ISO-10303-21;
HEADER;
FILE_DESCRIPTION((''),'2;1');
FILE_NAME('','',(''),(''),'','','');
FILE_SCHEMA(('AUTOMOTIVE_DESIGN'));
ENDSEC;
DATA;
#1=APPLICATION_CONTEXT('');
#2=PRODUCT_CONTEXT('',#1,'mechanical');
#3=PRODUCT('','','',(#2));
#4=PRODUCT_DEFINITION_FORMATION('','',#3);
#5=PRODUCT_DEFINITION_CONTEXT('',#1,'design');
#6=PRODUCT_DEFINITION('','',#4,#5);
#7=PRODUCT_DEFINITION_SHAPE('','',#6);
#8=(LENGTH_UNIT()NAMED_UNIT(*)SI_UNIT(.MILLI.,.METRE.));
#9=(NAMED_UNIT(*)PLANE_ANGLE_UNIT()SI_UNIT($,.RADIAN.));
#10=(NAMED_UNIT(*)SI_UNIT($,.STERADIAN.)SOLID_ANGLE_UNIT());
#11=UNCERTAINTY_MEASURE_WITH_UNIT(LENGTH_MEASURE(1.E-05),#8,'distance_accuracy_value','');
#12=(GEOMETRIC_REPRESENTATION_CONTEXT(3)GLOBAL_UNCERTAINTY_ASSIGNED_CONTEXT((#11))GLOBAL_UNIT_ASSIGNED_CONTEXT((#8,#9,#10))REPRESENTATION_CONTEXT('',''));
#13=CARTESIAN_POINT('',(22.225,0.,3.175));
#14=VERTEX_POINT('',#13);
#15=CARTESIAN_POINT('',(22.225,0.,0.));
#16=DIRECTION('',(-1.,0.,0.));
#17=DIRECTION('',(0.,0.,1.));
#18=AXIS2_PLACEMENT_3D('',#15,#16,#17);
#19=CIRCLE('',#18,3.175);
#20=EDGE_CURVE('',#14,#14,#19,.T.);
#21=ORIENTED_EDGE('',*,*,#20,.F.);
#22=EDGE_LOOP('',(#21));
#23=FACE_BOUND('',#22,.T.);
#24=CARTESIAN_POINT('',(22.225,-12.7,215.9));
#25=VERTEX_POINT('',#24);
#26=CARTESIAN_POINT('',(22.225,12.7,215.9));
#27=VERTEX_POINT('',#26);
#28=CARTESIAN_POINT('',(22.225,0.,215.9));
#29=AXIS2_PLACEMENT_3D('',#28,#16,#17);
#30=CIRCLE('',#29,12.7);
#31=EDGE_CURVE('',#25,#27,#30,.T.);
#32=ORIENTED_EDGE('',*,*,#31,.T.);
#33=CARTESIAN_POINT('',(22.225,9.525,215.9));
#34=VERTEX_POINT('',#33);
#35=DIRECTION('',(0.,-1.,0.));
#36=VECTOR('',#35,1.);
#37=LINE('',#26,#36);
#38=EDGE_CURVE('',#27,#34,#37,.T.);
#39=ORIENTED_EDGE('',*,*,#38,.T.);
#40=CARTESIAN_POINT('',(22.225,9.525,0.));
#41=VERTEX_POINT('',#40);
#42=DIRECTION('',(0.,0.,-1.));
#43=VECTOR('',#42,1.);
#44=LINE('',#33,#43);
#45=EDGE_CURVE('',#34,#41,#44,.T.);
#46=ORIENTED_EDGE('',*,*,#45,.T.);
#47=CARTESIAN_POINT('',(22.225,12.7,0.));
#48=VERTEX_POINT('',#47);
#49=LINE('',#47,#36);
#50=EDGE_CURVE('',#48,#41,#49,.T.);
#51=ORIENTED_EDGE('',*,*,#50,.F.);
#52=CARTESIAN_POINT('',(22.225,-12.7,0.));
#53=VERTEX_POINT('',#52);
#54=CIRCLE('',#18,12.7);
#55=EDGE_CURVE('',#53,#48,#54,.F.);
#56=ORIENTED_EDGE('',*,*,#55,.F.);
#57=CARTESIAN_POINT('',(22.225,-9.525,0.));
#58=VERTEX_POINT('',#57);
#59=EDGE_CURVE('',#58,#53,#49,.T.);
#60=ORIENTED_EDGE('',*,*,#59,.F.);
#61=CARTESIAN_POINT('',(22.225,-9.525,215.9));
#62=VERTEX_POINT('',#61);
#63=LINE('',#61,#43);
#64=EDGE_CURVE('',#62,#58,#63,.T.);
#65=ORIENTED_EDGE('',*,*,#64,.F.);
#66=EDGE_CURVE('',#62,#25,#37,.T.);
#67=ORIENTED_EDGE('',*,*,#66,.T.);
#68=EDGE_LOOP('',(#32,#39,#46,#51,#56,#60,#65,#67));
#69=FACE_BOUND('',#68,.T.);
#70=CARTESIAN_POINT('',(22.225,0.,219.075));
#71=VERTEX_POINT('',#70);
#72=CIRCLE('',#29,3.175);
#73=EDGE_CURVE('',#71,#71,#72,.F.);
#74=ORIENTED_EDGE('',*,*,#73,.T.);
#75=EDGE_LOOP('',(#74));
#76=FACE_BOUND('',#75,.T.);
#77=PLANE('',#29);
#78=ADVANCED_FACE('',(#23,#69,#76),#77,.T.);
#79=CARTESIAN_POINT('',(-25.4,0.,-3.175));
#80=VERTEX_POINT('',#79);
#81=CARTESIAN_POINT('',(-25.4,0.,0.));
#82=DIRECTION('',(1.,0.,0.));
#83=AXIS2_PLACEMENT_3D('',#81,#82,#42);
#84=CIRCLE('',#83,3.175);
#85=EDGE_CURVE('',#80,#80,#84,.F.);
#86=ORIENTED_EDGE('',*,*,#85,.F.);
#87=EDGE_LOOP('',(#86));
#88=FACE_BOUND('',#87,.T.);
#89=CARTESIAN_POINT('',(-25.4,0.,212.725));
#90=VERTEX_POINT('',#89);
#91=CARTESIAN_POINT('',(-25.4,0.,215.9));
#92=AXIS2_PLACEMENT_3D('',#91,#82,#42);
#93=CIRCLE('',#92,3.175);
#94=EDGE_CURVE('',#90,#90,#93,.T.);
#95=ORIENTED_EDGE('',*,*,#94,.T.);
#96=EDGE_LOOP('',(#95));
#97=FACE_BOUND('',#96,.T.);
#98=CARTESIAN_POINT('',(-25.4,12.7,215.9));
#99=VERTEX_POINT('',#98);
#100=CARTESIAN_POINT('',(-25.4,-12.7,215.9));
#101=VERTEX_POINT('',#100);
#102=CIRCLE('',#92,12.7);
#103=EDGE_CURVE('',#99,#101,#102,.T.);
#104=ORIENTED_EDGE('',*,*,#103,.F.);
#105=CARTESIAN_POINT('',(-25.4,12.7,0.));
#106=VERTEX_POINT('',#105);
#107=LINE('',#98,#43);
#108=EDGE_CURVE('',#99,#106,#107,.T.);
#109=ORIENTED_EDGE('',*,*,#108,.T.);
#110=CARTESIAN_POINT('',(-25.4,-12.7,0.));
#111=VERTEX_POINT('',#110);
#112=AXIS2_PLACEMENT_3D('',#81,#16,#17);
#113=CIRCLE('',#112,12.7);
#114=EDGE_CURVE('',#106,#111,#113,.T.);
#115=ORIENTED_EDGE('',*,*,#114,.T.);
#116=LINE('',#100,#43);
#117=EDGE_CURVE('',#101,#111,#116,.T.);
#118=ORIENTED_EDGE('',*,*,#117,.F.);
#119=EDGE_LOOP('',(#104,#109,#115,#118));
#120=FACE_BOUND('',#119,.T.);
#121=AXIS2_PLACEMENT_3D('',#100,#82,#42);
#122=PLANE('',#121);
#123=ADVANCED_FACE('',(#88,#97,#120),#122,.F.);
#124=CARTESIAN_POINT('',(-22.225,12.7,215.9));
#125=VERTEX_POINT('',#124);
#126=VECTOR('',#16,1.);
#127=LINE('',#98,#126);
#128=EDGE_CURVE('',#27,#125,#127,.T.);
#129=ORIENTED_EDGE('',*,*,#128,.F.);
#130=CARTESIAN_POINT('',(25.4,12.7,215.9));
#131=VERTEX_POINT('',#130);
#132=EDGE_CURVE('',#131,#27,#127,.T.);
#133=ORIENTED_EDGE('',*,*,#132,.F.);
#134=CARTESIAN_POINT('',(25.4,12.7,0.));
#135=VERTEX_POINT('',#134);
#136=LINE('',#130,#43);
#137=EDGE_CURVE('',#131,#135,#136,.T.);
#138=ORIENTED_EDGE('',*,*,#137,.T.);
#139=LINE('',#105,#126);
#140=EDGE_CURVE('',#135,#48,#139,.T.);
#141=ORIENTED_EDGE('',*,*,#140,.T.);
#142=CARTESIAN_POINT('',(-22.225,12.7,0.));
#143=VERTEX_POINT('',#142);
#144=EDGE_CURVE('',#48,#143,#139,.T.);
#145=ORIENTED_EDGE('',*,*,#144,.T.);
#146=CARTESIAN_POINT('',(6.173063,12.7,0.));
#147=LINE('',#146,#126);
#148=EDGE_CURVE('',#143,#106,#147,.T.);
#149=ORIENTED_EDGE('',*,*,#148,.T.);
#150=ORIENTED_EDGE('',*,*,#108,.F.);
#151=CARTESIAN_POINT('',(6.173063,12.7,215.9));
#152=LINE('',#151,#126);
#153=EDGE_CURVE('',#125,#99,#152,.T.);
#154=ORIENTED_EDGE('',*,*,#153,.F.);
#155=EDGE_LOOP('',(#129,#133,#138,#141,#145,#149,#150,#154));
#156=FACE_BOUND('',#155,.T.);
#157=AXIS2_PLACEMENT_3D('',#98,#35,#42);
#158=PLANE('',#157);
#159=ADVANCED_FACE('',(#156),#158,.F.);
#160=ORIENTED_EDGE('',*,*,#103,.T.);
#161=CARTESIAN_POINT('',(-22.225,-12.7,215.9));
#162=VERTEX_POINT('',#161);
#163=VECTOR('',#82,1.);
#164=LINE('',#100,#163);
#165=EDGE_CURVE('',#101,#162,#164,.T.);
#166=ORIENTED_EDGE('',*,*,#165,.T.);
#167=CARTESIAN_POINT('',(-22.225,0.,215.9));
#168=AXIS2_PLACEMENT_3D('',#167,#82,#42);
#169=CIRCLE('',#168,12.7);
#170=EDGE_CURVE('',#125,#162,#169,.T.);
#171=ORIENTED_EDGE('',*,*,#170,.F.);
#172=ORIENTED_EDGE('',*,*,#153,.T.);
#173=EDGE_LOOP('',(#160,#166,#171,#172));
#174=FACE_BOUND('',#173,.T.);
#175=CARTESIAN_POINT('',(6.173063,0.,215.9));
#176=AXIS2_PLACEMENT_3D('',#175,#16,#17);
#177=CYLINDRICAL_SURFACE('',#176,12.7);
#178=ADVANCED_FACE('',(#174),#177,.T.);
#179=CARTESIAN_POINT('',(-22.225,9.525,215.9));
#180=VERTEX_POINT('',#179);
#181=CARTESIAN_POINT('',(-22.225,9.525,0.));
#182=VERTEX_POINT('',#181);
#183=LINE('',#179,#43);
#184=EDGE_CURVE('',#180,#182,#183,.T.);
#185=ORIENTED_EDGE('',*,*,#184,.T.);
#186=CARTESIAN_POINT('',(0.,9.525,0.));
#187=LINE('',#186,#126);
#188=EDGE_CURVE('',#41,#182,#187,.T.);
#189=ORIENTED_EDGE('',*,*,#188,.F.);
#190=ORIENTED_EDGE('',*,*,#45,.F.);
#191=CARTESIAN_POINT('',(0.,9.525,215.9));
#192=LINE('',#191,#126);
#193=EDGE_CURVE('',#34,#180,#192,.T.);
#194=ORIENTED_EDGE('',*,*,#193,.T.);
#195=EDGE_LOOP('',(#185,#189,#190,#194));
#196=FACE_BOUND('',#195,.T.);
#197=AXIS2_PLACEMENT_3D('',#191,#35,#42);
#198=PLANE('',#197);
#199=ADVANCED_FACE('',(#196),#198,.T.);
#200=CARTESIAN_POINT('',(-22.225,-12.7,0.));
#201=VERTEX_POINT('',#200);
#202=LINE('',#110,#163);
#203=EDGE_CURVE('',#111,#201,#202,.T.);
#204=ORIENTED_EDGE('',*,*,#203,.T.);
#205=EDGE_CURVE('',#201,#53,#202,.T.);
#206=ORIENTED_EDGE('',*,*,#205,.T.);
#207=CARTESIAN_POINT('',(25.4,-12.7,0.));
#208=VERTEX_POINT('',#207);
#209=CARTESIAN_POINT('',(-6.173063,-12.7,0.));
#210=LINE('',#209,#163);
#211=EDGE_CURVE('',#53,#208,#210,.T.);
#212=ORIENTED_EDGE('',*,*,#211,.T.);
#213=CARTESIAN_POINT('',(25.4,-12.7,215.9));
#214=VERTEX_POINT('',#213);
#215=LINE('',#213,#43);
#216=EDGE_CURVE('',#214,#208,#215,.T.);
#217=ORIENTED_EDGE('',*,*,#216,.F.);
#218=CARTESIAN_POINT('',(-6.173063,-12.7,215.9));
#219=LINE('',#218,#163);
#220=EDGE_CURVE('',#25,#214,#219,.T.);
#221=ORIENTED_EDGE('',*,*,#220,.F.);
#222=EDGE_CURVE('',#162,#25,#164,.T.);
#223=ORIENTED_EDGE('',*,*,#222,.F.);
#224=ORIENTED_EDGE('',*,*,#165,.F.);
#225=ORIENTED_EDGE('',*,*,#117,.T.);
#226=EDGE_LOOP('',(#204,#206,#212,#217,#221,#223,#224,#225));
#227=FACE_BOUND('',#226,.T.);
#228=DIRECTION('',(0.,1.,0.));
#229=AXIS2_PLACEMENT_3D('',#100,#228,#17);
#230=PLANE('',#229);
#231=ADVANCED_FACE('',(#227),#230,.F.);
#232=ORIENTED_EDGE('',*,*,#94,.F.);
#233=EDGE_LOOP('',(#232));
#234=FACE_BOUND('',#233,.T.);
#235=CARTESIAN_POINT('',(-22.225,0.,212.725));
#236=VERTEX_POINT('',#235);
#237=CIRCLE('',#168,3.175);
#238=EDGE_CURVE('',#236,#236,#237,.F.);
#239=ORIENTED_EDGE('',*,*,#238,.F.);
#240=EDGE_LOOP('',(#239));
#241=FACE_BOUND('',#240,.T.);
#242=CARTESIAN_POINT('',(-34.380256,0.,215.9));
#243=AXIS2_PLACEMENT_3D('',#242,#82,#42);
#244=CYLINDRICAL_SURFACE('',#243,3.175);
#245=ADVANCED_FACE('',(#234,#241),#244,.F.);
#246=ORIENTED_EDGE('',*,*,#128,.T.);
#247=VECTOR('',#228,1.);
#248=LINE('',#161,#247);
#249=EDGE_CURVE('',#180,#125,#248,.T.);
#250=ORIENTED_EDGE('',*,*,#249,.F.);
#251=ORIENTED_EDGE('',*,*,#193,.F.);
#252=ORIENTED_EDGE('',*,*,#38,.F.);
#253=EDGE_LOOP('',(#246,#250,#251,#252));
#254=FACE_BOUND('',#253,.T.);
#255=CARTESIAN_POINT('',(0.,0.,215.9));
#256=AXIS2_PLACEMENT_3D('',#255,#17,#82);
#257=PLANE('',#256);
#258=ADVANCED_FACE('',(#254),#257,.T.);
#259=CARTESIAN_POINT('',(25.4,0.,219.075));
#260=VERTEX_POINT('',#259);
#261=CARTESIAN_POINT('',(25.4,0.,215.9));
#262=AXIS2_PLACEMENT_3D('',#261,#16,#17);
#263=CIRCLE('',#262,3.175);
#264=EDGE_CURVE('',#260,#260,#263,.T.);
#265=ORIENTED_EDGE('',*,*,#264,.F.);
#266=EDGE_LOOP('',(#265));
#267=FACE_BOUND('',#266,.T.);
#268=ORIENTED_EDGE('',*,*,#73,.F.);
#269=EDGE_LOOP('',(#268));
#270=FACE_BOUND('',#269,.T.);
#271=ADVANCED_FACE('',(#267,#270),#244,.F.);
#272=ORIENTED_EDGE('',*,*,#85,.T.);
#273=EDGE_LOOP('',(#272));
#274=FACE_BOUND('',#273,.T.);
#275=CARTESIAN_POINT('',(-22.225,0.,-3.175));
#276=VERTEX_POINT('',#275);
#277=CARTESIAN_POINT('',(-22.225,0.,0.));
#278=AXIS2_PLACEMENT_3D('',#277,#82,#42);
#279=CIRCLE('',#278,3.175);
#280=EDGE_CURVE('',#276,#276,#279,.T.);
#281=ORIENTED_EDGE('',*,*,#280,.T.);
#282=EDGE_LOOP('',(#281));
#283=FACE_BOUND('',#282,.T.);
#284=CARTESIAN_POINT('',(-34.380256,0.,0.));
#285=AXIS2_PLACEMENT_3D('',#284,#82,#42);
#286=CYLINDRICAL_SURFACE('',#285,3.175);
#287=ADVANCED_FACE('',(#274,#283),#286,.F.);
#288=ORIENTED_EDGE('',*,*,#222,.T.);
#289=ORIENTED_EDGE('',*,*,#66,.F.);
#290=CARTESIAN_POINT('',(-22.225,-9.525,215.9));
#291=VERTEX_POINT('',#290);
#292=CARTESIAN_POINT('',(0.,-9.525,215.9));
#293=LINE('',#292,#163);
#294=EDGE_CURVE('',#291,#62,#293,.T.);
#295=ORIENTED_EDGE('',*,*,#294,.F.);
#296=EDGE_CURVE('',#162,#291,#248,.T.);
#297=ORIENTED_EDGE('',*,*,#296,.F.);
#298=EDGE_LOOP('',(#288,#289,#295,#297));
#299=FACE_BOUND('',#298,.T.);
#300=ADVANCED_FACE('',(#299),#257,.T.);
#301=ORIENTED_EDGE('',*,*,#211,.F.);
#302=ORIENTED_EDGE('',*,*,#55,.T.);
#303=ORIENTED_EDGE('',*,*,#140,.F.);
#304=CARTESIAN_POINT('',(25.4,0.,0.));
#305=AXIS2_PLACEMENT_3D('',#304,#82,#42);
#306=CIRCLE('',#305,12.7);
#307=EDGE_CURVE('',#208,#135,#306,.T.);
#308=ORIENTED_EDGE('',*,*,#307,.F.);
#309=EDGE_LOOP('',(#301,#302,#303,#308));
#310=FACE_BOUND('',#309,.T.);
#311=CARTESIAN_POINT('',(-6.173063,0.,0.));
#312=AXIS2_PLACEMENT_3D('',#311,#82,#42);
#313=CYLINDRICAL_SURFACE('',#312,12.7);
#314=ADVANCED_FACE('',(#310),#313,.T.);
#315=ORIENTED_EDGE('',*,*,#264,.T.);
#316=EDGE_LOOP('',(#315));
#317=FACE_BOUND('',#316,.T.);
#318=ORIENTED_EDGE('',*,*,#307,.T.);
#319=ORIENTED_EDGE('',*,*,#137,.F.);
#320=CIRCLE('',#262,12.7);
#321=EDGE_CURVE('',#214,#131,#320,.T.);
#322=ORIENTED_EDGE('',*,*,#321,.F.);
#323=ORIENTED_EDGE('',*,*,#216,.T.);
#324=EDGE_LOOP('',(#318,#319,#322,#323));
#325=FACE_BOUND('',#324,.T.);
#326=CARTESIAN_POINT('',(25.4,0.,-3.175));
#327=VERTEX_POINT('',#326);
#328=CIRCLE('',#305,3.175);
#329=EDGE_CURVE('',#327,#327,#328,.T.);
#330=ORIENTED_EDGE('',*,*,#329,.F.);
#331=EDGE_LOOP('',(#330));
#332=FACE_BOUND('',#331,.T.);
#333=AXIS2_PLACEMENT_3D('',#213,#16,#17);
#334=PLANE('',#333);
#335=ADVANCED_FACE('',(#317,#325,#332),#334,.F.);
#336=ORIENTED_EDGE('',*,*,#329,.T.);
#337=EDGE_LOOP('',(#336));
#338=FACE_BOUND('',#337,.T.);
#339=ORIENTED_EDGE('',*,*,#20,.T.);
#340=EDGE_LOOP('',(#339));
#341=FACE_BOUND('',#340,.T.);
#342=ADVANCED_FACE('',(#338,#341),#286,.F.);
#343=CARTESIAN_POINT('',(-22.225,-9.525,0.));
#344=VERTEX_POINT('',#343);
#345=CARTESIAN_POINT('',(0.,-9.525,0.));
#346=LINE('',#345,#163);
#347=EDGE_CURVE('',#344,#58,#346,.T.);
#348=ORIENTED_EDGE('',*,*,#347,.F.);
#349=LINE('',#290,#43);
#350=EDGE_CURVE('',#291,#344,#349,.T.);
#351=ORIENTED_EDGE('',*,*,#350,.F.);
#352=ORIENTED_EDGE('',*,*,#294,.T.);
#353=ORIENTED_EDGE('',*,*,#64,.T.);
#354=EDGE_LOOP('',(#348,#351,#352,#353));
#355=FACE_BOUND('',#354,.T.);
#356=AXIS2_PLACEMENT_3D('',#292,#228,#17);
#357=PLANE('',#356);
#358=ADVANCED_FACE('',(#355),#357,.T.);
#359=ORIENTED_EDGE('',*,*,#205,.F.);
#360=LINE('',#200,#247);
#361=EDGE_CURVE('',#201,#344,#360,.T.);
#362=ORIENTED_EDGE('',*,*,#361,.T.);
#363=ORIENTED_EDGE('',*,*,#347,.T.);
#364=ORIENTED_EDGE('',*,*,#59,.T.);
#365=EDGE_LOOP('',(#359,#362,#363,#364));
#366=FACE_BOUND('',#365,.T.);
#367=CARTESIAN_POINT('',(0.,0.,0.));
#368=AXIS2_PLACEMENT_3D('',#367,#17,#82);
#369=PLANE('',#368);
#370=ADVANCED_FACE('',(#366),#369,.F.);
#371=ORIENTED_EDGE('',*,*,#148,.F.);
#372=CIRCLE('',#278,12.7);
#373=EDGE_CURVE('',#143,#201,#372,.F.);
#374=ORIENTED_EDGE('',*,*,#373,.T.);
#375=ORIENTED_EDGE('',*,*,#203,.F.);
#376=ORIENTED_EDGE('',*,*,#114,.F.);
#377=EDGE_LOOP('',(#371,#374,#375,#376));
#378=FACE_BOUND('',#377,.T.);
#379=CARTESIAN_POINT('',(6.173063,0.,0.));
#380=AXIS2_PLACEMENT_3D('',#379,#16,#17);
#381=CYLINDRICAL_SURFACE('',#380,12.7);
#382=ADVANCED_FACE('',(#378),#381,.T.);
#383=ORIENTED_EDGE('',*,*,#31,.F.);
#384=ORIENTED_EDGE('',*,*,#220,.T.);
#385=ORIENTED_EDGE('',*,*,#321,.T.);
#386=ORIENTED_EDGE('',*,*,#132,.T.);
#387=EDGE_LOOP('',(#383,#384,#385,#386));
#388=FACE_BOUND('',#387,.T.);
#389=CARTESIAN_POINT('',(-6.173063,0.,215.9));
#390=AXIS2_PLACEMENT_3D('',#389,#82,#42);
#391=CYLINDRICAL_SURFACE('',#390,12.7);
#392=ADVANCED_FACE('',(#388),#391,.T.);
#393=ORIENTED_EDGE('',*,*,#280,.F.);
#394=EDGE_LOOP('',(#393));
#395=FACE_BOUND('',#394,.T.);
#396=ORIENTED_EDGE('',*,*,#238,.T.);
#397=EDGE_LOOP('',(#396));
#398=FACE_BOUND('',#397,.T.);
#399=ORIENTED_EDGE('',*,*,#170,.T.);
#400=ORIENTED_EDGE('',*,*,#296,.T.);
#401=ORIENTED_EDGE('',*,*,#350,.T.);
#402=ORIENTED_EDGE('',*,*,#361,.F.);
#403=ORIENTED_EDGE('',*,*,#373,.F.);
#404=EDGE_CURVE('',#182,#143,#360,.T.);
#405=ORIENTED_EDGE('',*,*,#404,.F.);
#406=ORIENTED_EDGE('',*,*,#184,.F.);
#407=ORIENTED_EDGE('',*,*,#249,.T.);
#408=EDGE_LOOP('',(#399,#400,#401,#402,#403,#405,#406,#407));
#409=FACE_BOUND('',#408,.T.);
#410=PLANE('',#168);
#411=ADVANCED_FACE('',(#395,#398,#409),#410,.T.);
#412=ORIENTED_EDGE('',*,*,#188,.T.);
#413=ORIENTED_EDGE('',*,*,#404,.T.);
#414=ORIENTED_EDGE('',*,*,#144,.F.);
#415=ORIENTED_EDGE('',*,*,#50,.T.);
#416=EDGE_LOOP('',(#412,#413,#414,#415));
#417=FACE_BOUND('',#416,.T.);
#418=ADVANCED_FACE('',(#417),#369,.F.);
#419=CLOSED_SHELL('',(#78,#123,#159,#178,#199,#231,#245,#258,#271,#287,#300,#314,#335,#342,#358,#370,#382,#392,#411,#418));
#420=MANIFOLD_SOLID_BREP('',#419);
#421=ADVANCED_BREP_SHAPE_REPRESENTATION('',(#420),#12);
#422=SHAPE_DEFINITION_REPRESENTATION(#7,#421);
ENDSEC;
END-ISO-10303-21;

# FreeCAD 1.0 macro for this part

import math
import FreeCAD as App
import Part
import Sketcher

V = App.Vector
Q = App.Units.Quantity


def add_polygon(sketch, points):
    """Adds a closed chain of lines whose ends are joined by coincident constraints."""
    first, n = sketch.GeometryCount, len(points)
    for a, b in zip(points, points[1:] + points[:1]):
        sketch.addGeometry(Part.LineSegment(App.Vector(*a, 0), App.Vector(*b, 0)), False)
    for i in range(n):
        sketch.addConstraint(Sketcher.Constraint("Coincident", first + i, 2, first + (i + 1) % n, 1))

doc = App.newDocument("Part")
body = doc.addObject("PartDesign::Body", "Body")

# Sketch on XY plane
sketch1 = body.newObject("Sketcher::SketchObject", "Sketch")
sketch1.AttachmentSupport = (doc.getObject("XY_Plane"), [""])
sketch1.MapMode = "FlatFace"
add_polygon(sketch1, [(-25, 13), (-25, -13), (25, -13), (25, 13)])  # lines 0-3
add_polygon(sketch1, [(22, -10), (-22, -10), (-22, 10), (22, 10)])  # lines 4-7
sketch1.addConstraint([
    Sketcher.Constraint("Vertical", 0),
    Sketcher.Constraint("Horizontal", 1),
    Sketcher.Constraint("Vertical", 2),
    Sketcher.Constraint("Horizontal", 3),
    Sketcher.Constraint("Horizontal", 4),
    Sketcher.Constraint("Vertical", 5),
    Sketcher.Constraint("Horizontal", 6),
    Sketcher.Constraint("Vertical", 7),
    Sketcher.Constraint("Symmetric", 0, 2, 2, 2, -1, 1),
    Sketcher.Constraint("Symmetric", 4, 2, 6, 2, -1, 1),
    Sketcher.Constraint("DistanceX", 1, 1, 1, 2, Q("2 in")),
    Sketcher.Constraint("DistanceY", 0, 2, 0, 1, Q("1 in")),
    Sketcher.Constraint("DistanceX", 4, 2, 4, 1, Q("1.75 in")),
    Sketcher.Constraint("DistanceY", 5, 1, 5, 2, Q("0.75 in")),
])
pad1 = body.newObject("PartDesign::Pad", "Pad")
pad1.Profile = sketch1
pad1.Length = Q("8.5 in")

# Sketch on YZ plane
sketch2 = body.newObject("Sketcher::SketchObject", "Sketch001")
sketch2.AttachmentSupport = (doc.getObject("YZ_Plane"), [""])
sketch2.MapMode = "FlatFace"
sketch2.AttachmentOffset = App.Placement(V(0, 0, -1 * 25.4), App.Rotation())
sketch2.addGeometry([
    Part.LineSegment(V(-13, 0, 0), V(13, 0, 0)),
    Part.ArcOfCircle(Part.Circle(V(0, 0, 0), V(0, 0, 1), 13), math.radians(180), math.radians(360)),
], False)
sketch2.addConstraint([
    Sketcher.Constraint("Coincident", 0, 1, 1, 1),
    Sketcher.Constraint("Coincident", 1, 2, 0, 2),
    Sketcher.Constraint("Horizontal", 0),
    Sketcher.Constraint("Coincident", 1, 3, -1, 1),
    Sketcher.Constraint("PointOnObject", 0, 1, -1),
    Sketcher.Constraint("Radius", 1, Q("0.5 in")),
])
pad2 = body.newObject("PartDesign::Pad", "Pad001")
pad2.Profile = sketch2
pad2.Length = Q("0.125 in")

# Sketch on YZ plane
sketch3 = body.newObject("Sketcher::SketchObject", "Sketch002")
sketch3.AttachmentSupport = (doc.getObject("YZ_Plane"), [""])
sketch3.MapMode = "FlatFace"
sketch3.AttachmentOffset = App.Placement(V(0, 0, 1 * 25.4), App.Rotation())
sketch3.addGeometry([
    Part.LineSegment(V(13, 0, 0), V(-13, 0, 0)),
    Part.ArcOfCircle(Part.Circle(V(0, 0, 0), V(0, 0, 1), 13), math.radians(180), math.radians(360)),
], False)
sketch3.addConstraint([
    Sketcher.Constraint("Coincident", 0, 1, 1, 2),
    Sketcher.Constraint("Coincident", 1, 1, 0, 2),
    Sketcher.Constraint("Horizontal", 0),
    Sketcher.Constraint("Coincident", 1, 3, -1, 1),
    Sketcher.Constraint("PointOnObject", 0, 1, -1),
    Sketcher.Constraint("Radius", 1, Q("0.5 in")),
])
pad3 = body.newObject("PartDesign::Pad", "Pad002")
pad3.Profile = sketch3
pad3.Length = Q("0.125 in")
pad3.Reversed = True

# Sketch on YZ plane
sketch4 = body.newObject("Sketcher::SketchObject", "Sketch003")
sketch4.AttachmentSupport = (doc.getObject("YZ_Plane"), [""])
sketch4.MapMode = "FlatFace"
sketch4.AttachmentOffset = App.Placement(V(0, 0, 1 * 25.4), App.Rotation())
sketch4.addGeometry(Part.Circle(V(0, 0, 0), V(0, 0, 1), 3.2), False)
sketch4.addConstraint([
    Sketcher.Constraint("Coincident", 0, 3, -1, 1),
    Sketcher.Constraint("Diameter", 0, Q("0.25 in")),
])
pocket1 = body.newObject("PartDesign::Pocket", "Pocket")
pocket1.Profile = sketch4
pocket1.Length = Q("2 in")
doc.recompute()

datumplane = body.newObject("PartDesign::Plane", "DatumPlane")
datumplane.AttachmentSupport = (doc.getObject("XY_Plane"), [""])
datumplane.MapMode = "FlatFace"
datumplane.AttachmentOffset = App.Placement(V(0, 0, 4.25 * 25.4), App.Rotation())
mirrored = body.newObject("PartDesign::Mirrored", "Mirrored")
mirrored.Originals = [pad2, pad3, pocket1]
mirrored.MirrorPlane = (datumplane, [""])
body.Tip = mirrored

doc.recompute()
